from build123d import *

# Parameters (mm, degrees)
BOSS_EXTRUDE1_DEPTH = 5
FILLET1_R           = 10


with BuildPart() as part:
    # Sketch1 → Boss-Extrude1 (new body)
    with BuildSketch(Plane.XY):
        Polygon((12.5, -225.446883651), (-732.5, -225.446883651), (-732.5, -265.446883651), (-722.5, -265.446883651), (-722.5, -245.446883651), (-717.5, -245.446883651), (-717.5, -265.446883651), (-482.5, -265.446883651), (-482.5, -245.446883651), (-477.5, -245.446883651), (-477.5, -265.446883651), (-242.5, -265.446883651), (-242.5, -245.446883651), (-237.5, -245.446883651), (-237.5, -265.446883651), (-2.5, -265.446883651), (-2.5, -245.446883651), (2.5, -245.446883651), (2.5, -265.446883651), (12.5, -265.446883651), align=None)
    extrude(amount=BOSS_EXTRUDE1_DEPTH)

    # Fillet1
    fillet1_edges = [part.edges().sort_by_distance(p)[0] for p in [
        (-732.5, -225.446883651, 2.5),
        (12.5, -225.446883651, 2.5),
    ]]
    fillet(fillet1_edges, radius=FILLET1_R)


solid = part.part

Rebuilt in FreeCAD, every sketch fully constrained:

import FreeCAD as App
import Part
import Sketcher
from FreeCAD import Vector
Q = App.Units.Quantity


def edges_at(feature, points):
    """Names of the edges that pass closest to the given points."""
    edges = feature.Shape.Edges
    near = lambda p: min(range(len(edges)), key=lambda i: edges[i].distToShape(Part.Vertex(*p))[0])
    return sorted({f"Edge{near(p) + 1}" for p in points})


def add_polygon(sketch, points):
    """Adds a closed chain of lines whose ends are joined by coincident constraints."""
    first, n = sketch.GeometryCount, len(points)
    for a, b in zip(points, points[1:] + points[:1]):
        sketch.addGeometry(Part.LineSegment(App.Vector(*a, 0), App.Vector(*b, 0)), False)
    for i in range(n):
        sketch.addConstraint(Sketcher.Constraint("Coincident", first + i, 2, first + (i + 1) % n, 1))

doc = App.newDocument("Part")
body = doc.addObject("PartDesign::Body", "Body")

# Sketch on XY plane
sketch1 = doc.addObject("Sketcher::SketchObject", "Sketch")
body.addObject(sketch1)
sketch1.AttachmentSupport = (doc.XY_Plane, [""])
sketch1.MapMode = "FlatFace"
add_polygon(sketch1, [(12, -225), (-732, -225), (-732, -265), (-722, -265), (-722, -245), (-718, -245), (-718, -265), (-482, -265), (-482, -245), (-478, -245), (-478, -265), (-242, -265), (-242, -245), (-238, -245), (-238, -265), (-2, -265), (-2, -245), (2, -245), (2, -265), (12, -265)])  # lines 0-19
sketch1.addConstraint([
    Sketcher.Constraint("Horizontal", 0),
    Sketcher.Constraint("Vertical", 1),
    Sketcher.Constraint("Horizontal", 2),
    Sketcher.Constraint("Vertical", 3),
    Sketcher.Constraint("Horizontal", 4),
    Sketcher.Constraint("Vertical", 5),
    Sketcher.Constraint("Horizontal", 6),
    Sketcher.Constraint("Vertical", 7),
    Sketcher.Constraint("Horizontal", 8),
    Sketcher.Constraint("Vertical", 9),
    Sketcher.Constraint("Horizontal", 10),
    Sketcher.Constraint("Vertical", 11),
    Sketcher.Constraint("Horizontal", 12),
    Sketcher.Constraint("Vertical", 13),
    Sketcher.Constraint("Horizontal", 14),
    Sketcher.Constraint("Vertical", 15),
    Sketcher.Constraint("Horizontal", 16),
    Sketcher.Constraint("Vertical", 17),
    Sketcher.Constraint("Horizontal", 18),
    Sketcher.Constraint("Vertical", 19),
    Sketcher.Constraint("Symmetric", 14, 2, 17, 2, -2),
    Sketcher.Constraint("Horizontal", 2, 2, 5, 2),
    Sketcher.Constraint("Horizontal", 4, 2, 7, 2),
    Sketcher.Constraint("Horizontal", 6, 2, 9, 2),
    Sketcher.Constraint("Horizontal", 8, 2, 11, 2),
    Sketcher.Constraint("Horizontal", 10, 2, 13, 2),
    Sketcher.Constraint("Horizontal", 12, 2, 15, 2),
    Sketcher.Constraint("Equal", 4, 8),
    Sketcher.Constraint("Equal", 6, 10),
    Sketcher.Constraint("Equal", 8, 12),
    Sketcher.Constraint("Equal", 10, 14),
    Sketcher.Constraint("Equal", 12, 16),
    Sketcher.Constraint("Equal", 2, 18),
    Sketcher.Constraint("DistanceX", 0, 2, 0, 1, Q("745 mm")),
    Sketcher.Constraint("DistanceX", 2, 1, 2, 2, Q("10 mm")),
    Sketcher.Constraint("DistanceX", 4, 1, 4, 2, Q("5 mm")),
    Sketcher.Constraint("DistanceY", 1, 2, 1, 1, Q("40 mm")),
    Sketcher.Constraint("DistanceY", 3, 1, 3, 2, Q("20 mm")),
    Sketcher.Constraint("DistanceY", 0, 2, -1, 1, Q("225.446884 mm")),
])
pad1 = doc.addObject("PartDesign::Pad", "Pad")
body.addObject(pad1)
pad1.Profile = sketch1
pad1.Length = 5
doc.recompute()

fillet = doc.addObject("PartDesign::Fillet", "Fillet")
body.addObject(fillet)
fillet.Base = (pad1, edges_at(pad1, [(-732.5, -225.447, 2.5), (12.5, -225.447, 2.5)]))
fillet.Radius = 10

doc.recompute()
